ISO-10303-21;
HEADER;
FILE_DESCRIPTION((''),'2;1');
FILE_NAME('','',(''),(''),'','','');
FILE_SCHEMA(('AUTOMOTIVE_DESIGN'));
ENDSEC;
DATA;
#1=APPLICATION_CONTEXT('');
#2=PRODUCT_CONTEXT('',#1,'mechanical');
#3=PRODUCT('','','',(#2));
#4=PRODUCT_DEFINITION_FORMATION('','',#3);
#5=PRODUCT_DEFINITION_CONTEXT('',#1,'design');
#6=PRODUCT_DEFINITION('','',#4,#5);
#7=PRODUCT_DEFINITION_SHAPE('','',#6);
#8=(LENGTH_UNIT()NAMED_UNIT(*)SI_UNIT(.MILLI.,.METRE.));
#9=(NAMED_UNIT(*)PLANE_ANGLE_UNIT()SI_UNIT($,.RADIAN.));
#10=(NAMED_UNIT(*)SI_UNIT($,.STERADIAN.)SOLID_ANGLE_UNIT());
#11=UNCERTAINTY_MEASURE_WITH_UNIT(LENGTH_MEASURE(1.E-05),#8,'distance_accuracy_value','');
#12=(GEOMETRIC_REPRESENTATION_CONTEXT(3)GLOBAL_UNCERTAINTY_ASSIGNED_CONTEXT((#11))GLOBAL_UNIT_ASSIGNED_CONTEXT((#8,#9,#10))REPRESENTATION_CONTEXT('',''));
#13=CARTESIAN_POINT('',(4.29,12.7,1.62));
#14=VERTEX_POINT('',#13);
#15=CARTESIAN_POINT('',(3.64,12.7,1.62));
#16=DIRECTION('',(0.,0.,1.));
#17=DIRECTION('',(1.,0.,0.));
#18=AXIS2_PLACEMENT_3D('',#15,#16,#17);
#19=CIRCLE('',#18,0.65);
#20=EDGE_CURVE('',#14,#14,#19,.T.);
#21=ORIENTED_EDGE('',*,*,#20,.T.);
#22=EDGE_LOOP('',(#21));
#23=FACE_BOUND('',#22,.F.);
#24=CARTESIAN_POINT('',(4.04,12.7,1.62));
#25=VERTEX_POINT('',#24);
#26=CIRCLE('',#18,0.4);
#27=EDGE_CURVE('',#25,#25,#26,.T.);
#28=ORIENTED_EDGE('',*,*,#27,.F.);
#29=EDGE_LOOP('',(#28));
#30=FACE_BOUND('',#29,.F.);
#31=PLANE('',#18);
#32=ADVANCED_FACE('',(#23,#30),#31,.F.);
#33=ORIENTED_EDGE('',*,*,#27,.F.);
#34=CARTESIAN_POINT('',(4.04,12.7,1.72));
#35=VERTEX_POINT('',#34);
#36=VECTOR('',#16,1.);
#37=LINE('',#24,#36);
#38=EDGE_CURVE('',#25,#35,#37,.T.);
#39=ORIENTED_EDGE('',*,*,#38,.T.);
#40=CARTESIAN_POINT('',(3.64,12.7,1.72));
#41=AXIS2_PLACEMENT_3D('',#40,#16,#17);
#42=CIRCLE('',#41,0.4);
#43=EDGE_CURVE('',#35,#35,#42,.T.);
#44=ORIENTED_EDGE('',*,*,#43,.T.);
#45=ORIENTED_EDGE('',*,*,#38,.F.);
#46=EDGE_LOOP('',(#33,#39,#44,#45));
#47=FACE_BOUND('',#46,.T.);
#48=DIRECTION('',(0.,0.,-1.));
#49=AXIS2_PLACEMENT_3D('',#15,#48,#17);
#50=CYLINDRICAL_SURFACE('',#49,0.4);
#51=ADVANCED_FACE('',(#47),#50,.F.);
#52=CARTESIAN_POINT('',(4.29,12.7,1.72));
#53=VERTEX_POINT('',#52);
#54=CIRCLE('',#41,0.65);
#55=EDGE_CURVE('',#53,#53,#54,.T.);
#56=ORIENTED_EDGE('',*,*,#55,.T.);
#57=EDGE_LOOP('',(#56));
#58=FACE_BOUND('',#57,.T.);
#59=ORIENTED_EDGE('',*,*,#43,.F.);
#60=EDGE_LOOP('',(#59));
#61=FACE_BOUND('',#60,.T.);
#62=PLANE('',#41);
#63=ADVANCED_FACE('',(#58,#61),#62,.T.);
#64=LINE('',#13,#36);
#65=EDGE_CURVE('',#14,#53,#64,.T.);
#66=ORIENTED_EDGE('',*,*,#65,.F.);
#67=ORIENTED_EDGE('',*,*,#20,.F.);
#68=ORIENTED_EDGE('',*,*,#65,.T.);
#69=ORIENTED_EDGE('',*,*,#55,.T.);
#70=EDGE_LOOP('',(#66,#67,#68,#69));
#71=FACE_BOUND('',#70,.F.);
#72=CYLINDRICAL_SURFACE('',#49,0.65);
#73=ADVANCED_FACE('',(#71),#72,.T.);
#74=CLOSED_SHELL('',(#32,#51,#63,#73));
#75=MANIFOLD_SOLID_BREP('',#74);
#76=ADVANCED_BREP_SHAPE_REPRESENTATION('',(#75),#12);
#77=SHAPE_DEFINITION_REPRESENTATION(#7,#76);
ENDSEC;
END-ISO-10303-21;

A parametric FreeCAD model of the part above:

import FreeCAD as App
import Part
import Sketcher

V = App.Vector

doc = App.newDocument("Part")
body = doc.addObject("PartDesign::Body", "Body")

# Sketch on XY plane
sketch1 = body.newObject("Sketcher::SketchObject", "Sketch")
sketch1.AttachmentSupport = (doc.getObject("XY_Plane"), [""])
sketch1.MapMode = "FlatFace"
sketch1.AttachmentOffset = App.Placement(V(0, 0, 1.62), App.Rotation())
sketch1.addGeometry(Part.Circle(V(0, 0, 0), V(0, 0, 1), 0.4), False)
sketch1.addConstraint(Sketcher.Constraint("Coincident", 0, 3, -1, 1))
sketch1.addConstraint(Sketcher.Constraint("Diameter", 0, 0.8))
pad1 = body.newObject("PartDesign::Pad", "Pad")
pad1.Profile = sketch1
pad1.Length = 0.1
body2 = doc.addObject("PartDesign::Body", "Body001")

# Sketch on XY plane
sketch2 = body2.newObject("Sketcher::SketchObject", "Sketch001")
sketch2.AttachmentSupport = (doc.getObject("XY_Plane001"), [""])
sketch2.MapMode = "FlatFace"
sketch2.AttachmentOffset = App.Placement(V(0, 0, 1.62), App.Rotation())
sketch2.addGeometry(Part.Circle(V(0, 0, 0), V(0, 0, 1), 0.65), False)
sketch2.addConstraint(Sketcher.Constraint("Coincident", 0, 3, -1, 1))
sketch2.addConstraint(Sketcher.Constraint("Diameter", 0, 1.3))
pad2 = body2.newObject("PartDesign::Pad", "Pad001")
pad2.Profile = sketch2
pad2.Length = 0.1
doc.recompute()

boolean = body2.newObject("PartDesign::Boolean", "Boolean")
boolean.Type = "Cut"
boolean.addObjects([body])
body3 = doc.addObject("PartDesign::Body", "Body002")
doc.recompute()

body2.Placement = App.Placement(V(3.64, 12.7, 0), App.Rotation(V(0, 0, 1), 0))
boolean2 = body3.newObject("PartDesign::Boolean", "Boolean001")
boolean2.Type = "Fuse"
boolean2.addObjects([body2])

doc.recompute()
